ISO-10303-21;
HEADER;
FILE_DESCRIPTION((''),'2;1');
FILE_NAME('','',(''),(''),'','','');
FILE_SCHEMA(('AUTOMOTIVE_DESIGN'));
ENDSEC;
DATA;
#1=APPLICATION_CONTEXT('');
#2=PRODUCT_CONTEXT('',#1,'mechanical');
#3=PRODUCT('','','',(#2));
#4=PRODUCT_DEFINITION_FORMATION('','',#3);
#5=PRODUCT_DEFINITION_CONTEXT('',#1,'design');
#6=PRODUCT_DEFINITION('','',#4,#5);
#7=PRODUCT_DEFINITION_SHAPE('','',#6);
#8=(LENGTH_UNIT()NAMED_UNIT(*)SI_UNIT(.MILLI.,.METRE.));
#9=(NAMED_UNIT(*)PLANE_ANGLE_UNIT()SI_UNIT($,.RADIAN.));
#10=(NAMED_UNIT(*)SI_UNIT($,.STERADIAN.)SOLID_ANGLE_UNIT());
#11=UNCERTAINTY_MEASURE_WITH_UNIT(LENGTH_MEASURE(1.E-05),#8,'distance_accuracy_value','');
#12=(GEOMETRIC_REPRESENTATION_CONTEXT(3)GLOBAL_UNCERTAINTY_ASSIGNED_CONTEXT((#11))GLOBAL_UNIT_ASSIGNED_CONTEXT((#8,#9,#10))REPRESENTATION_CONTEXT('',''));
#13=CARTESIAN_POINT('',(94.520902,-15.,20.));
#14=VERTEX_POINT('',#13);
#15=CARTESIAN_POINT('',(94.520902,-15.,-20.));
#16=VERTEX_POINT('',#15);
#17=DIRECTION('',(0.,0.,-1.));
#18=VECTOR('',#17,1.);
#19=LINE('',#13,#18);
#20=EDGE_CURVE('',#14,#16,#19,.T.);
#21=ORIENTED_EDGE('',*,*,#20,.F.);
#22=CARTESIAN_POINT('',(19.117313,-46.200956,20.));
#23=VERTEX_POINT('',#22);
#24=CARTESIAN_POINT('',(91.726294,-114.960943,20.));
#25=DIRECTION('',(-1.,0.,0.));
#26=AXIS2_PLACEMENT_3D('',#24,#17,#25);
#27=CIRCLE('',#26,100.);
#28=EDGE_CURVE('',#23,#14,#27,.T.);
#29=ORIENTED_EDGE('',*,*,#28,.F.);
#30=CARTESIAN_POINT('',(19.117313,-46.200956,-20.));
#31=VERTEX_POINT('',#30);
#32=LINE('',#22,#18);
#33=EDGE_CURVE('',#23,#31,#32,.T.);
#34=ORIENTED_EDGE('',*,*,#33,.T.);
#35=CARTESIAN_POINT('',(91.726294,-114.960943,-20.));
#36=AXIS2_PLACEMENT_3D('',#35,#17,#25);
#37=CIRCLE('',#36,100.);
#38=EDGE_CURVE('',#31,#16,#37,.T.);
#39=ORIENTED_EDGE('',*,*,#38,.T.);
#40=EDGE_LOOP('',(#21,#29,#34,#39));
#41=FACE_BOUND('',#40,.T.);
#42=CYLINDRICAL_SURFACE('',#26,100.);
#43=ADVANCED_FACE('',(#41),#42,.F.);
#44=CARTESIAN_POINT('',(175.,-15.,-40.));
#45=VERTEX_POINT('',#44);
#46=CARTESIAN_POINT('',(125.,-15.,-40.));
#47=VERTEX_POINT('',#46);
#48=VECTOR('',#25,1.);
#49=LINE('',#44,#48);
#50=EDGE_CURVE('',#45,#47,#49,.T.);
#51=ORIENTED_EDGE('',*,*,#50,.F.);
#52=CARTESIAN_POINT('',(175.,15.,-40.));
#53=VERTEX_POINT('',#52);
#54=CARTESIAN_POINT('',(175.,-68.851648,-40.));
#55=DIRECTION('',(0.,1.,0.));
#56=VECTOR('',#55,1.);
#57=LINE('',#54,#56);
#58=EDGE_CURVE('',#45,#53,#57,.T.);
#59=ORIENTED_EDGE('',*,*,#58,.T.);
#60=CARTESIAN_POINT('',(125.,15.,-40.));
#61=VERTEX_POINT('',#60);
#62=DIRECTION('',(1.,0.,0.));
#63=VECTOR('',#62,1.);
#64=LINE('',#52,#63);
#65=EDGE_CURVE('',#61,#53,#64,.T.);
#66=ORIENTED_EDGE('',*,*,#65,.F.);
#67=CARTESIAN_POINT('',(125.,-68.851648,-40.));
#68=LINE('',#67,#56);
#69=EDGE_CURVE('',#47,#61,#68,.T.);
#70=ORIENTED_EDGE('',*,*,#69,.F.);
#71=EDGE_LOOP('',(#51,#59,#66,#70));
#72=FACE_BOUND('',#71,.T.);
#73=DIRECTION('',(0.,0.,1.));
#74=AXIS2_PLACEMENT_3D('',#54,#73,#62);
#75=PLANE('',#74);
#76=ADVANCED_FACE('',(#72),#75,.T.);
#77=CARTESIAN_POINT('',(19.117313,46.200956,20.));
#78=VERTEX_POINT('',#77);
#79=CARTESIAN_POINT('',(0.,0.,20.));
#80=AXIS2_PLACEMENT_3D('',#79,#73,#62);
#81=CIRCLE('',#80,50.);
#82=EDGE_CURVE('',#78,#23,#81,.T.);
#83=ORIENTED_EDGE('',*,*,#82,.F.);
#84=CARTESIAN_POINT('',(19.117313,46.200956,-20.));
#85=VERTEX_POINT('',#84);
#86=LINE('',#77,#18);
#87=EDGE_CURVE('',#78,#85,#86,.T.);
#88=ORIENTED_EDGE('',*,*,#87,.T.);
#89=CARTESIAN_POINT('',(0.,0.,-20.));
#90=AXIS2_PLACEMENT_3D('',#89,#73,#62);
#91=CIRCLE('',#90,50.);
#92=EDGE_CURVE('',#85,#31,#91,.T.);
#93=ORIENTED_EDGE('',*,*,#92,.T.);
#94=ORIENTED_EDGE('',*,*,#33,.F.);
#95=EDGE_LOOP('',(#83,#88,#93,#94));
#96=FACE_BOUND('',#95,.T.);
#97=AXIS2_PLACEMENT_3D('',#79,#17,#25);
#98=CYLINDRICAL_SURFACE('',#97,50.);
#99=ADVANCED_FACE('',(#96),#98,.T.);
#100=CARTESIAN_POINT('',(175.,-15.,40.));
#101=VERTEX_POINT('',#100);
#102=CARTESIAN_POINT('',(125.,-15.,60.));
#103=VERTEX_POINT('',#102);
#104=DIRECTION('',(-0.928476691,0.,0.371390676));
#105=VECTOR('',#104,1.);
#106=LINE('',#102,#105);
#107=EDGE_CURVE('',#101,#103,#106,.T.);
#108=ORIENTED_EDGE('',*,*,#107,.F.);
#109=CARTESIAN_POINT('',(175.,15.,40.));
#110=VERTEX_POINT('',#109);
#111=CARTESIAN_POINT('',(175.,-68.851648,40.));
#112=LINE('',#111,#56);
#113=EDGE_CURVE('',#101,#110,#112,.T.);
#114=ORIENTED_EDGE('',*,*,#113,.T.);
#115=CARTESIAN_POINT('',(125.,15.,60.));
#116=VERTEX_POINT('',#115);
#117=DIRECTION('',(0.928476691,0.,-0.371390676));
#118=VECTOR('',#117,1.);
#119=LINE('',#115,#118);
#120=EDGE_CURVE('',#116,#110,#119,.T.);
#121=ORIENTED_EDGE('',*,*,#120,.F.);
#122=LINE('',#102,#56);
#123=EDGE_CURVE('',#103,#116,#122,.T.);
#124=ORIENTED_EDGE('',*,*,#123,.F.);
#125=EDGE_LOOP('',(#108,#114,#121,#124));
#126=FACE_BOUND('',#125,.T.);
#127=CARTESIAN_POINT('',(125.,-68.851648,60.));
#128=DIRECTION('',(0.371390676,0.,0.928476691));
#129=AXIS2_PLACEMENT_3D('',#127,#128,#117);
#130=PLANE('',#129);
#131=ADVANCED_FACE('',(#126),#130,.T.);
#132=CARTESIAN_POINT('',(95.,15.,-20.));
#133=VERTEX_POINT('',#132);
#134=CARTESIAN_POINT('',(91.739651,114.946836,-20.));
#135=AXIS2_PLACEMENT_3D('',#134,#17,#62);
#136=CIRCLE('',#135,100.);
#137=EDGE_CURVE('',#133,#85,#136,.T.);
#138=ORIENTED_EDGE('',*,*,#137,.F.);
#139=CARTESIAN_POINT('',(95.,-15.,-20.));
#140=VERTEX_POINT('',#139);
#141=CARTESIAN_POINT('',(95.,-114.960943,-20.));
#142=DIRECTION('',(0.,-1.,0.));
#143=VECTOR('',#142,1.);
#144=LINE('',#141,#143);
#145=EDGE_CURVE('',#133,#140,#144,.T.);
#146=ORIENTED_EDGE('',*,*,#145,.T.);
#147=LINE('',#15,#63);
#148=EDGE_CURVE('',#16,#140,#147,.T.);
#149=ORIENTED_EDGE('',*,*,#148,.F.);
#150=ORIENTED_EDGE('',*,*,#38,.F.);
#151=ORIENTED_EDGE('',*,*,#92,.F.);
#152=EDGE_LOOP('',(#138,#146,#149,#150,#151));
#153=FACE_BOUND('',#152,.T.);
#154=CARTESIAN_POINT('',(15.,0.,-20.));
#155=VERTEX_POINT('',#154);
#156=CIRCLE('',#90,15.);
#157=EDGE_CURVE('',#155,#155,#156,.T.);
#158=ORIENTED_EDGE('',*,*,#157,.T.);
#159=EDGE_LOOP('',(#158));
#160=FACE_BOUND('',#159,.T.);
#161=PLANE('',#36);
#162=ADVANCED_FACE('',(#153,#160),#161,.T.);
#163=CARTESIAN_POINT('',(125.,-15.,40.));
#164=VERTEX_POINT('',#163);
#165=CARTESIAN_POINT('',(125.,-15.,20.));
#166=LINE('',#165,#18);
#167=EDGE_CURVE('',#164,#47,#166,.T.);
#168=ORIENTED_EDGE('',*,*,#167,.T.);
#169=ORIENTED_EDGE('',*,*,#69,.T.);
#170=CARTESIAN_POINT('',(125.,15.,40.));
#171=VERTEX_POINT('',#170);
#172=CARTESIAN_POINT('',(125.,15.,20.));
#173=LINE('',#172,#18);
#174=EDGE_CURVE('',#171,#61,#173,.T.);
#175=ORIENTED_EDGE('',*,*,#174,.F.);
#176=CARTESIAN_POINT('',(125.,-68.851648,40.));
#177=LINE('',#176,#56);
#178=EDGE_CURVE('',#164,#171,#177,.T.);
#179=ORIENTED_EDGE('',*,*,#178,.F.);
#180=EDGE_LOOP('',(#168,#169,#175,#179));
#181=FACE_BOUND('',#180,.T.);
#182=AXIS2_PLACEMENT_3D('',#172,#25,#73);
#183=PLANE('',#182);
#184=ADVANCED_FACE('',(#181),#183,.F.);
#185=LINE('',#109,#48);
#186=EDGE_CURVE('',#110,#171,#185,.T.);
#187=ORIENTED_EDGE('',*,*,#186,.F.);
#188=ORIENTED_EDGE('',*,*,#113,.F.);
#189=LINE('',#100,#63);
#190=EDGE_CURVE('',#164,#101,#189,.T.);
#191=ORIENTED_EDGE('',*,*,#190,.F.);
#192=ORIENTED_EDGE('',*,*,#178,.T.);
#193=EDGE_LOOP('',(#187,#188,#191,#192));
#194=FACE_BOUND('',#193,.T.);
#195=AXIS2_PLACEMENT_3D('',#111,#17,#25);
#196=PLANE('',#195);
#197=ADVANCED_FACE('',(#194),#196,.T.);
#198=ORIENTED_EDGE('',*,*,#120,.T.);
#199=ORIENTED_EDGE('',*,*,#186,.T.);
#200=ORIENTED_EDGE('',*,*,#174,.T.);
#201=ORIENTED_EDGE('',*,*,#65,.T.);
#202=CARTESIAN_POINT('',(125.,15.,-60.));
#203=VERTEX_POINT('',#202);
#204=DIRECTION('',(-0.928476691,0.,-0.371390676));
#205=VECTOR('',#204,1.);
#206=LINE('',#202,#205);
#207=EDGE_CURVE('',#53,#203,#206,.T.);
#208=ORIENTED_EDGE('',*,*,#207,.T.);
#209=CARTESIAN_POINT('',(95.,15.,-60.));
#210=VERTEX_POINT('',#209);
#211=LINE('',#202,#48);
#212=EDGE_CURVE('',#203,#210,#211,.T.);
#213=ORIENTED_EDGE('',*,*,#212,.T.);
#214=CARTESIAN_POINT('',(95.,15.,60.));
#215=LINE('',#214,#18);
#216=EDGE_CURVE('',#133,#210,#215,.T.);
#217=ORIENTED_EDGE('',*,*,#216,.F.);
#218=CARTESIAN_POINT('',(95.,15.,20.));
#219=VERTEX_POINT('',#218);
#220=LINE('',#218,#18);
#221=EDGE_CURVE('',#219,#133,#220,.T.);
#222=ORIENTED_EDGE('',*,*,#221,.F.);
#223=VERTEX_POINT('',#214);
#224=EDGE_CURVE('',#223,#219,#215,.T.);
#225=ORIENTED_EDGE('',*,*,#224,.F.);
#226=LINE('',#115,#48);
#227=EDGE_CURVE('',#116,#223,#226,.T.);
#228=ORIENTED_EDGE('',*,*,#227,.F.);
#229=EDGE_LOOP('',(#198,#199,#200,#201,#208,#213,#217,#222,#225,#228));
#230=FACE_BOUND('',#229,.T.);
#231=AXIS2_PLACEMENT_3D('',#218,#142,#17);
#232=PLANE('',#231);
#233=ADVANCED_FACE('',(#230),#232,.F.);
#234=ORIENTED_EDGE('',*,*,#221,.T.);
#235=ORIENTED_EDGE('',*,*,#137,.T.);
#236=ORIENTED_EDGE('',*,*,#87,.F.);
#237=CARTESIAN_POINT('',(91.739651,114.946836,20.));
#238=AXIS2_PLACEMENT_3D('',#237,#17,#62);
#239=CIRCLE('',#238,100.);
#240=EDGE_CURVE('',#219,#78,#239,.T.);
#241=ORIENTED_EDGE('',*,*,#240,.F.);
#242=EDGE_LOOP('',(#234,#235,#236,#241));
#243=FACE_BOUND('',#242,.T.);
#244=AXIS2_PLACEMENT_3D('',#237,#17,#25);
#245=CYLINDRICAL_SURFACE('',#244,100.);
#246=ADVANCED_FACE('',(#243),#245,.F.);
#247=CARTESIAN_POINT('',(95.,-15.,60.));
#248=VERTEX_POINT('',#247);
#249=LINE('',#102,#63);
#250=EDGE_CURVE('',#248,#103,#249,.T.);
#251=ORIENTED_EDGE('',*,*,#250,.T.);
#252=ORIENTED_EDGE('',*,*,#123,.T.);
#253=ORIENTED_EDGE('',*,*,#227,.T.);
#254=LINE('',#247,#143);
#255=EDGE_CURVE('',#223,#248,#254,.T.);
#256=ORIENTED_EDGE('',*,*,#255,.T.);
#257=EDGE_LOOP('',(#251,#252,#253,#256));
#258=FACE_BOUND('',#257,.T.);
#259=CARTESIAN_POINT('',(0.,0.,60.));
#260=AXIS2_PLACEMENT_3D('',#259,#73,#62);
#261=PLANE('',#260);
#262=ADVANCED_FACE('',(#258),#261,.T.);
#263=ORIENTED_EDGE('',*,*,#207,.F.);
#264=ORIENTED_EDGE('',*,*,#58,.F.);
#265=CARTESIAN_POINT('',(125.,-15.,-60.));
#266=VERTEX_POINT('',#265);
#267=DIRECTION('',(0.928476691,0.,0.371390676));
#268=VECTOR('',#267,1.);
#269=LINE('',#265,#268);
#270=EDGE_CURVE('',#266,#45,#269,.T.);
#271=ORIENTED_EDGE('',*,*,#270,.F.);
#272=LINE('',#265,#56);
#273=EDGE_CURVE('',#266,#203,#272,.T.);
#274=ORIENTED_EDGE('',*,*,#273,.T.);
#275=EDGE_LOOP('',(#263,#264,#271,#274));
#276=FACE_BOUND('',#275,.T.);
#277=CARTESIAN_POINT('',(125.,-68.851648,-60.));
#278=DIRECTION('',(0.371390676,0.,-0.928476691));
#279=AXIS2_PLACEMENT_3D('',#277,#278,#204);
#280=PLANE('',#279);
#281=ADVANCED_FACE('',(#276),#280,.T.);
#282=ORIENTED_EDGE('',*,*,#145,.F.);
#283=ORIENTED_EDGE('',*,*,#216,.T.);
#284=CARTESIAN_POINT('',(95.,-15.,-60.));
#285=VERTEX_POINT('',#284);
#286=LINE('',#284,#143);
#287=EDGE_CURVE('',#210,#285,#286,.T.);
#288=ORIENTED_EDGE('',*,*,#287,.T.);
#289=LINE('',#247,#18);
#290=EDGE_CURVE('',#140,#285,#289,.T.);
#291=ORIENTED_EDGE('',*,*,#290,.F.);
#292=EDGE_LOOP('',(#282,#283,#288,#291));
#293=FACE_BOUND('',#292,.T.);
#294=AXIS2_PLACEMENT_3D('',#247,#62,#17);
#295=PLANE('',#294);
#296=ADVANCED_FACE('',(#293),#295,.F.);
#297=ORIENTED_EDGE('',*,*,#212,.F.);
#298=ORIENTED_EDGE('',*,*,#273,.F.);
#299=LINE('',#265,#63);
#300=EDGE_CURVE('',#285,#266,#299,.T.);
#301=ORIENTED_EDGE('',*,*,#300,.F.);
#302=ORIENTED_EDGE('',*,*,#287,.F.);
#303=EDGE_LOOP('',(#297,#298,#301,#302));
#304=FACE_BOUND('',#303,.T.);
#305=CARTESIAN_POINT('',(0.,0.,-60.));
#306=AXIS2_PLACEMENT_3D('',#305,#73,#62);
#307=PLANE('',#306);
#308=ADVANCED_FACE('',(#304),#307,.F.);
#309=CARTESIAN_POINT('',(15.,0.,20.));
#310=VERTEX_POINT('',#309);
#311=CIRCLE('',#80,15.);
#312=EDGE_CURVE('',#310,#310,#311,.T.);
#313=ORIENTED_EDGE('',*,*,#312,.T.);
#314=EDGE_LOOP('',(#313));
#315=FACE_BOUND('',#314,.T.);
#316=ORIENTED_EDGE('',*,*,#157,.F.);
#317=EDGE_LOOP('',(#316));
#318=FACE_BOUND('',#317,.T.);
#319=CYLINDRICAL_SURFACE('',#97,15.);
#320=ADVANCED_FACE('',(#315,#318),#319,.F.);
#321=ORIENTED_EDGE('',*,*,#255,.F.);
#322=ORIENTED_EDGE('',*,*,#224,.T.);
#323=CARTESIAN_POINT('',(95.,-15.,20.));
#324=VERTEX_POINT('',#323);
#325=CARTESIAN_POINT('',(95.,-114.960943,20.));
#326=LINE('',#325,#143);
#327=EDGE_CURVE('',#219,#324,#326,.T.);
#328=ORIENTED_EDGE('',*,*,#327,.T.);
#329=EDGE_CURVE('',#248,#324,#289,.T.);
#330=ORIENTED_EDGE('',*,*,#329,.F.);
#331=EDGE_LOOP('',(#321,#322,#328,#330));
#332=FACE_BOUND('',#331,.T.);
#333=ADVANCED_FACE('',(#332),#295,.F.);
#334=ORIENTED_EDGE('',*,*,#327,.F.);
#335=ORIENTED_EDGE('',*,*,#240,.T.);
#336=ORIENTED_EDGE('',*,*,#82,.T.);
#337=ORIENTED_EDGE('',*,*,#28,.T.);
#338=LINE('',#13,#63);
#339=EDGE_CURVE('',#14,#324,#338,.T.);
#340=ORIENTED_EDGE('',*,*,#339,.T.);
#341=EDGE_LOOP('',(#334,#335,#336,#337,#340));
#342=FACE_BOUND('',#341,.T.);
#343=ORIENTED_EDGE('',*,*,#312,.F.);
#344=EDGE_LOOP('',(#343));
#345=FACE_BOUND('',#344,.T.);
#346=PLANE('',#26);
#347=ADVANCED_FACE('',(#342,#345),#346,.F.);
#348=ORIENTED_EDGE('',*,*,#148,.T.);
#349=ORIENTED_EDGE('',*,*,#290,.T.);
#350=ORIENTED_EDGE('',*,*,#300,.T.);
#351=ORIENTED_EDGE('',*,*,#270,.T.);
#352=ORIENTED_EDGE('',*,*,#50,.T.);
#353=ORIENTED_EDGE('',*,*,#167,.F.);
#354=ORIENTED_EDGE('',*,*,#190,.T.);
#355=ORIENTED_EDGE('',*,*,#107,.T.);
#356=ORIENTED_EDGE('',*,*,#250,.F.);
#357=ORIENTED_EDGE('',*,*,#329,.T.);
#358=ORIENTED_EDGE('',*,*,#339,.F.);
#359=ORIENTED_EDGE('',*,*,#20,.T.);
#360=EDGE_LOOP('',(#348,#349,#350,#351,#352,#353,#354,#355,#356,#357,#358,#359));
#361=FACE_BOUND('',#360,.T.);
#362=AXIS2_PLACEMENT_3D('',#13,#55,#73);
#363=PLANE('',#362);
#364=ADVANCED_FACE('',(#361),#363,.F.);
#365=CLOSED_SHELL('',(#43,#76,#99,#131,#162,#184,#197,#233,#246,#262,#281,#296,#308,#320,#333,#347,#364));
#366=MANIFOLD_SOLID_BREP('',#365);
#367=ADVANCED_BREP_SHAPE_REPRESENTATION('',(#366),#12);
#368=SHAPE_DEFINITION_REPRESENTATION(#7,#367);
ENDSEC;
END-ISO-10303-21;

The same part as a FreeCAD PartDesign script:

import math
import FreeCAD as App
import Part
import Sketcher

V = App.Vector


def add_polygon(sketch, points):
    """Adds a closed chain of lines whose ends are joined by coincident constraints."""
    first, n = sketch.GeometryCount, len(points)
    for a, b in zip(points, points[1:] + points[:1]):
        sketch.addGeometry(Part.LineSegment(App.Vector(*a, 0), App.Vector(*b, 0)), False)
    for i in range(n):
        sketch.addConstraint(Sketcher.Constraint("Coincident", first + i, 2, first + (i + 1) % n, 1))

doc = App.newDocument("Part")
body = doc.addObject("PartDesign::Body", "Body")

# Sketch on XY plane
sketch1 = doc.addObject("Sketcher::SketchObject", "Sketch")
body.addObject(sketch1)
sketch1.AttachmentSupport = (doc.XY_Plane, [""])
sketch1.MapMode = "FlatFace"
sketch1.addGeometry(Part.LineSegment(V(125, 15, 0), V(95, 15, 0)), False)
sketch1.addGeometry(Part.ArcOfCircle(Part.Circle(V(92, 115, 0), V(0, 0, 1), 100), math.radians(-137), math.radians(-88)), False)
sketch1.addGeometry(Part.ArcOfCircle(Part.Circle(V(0, 0, 0), V(0, 0, 1), 50), math.radians(68), math.radians(292)), False)
sketch1.addGeometry(Part.ArcOfCircle(Part.Circle(V(92, -115, 0), V(0, 0, 1), 100), math.radians(88), math.radians(137)), False)
sketch1.addGeometry(Part.LineSegment(V(95, -15, 0), V(125, -15, 0)), False)
sketch1.addGeometry(Part.LineSegment(V(125, -15, 0), V(125, 15, 0)), False)
sketch1.addGeometry(Part.Circle(V(0, 0, 0), V(0, 0, 1), 15), False)
sketch1.addConstraint(Sketcher.Constraint("Coincident", 0, 2, 1, 2))
sketch1.addConstraint(Sketcher.Constraint("Coincident", 1, 1, 2, 1))
sketch1.addConstraint(Sketcher.Constraint("Coincident", 2, 2, 3, 2))
sketch1.addConstraint(Sketcher.Constraint("Coincident", 3, 1, 4, 1))
sketch1.addConstraint(Sketcher.Constraint("Coincident", 4, 2, 5, 1))
sketch1.addConstraint(Sketcher.Constraint("Coincident", 5, 2, 0, 1))
sketch1.addConstraint(Sketcher.Constraint("Horizontal", 0))
sketch1.addConstraint(Sketcher.Constraint("Horizontal", 4))
sketch1.addConstraint(Sketcher.Constraint("Vertical", 5))
sketch1.addConstraint(Sketcher.Constraint("Coincident", 2, 3, -1, 1))
sketch1.addConstraint(Sketcher.Constraint("Coincident", 6, 3, -1, 1))
sketch1.addConstraint(Sketcher.Constraint("Equal", 1, 3))
sketch1.addConstraint(Sketcher.Constraint("Vertical", 1, 1, 2, 2))
sketch1.addConstraint(Sketcher.Constraint("Equal", 0, 5))
sketch1.addConstraint(Sketcher.Constraint("Diameter", 6, 30.0))
sketch1.addConstraint(Sketcher.Constraint("Radius", 1, 100.0))
sketch1.addConstraint(Sketcher.Constraint("Radius", 2, 50.0))
sketch1.addConstraint(Sketcher.Constraint("DistanceX", 0, 2, 0, 1, 30.0))
sketch1.addConstraint(Sketcher.Constraint("DistanceX", -1, 1, 0, 2, 95.0))
sketch1.addConstraint(Sketcher.Constraint("DistanceY", -1, 1, 0, 2, 15.0))
sketch1.addConstraint(Sketcher.Constraint("DistanceY", 3, 3, 1, 1, 161.161899))
sketch1.addConstraint(Sketcher.Constraint("DistanceX", 4, 1, 4, 2, 30.479098))
pad1 = doc.addObject("PartDesign::Pad", "Pad")
body.addObject(pad1)
pad1.Profile = sketch1
pad1.Length = 40
pad1.Midplane = True

# Sketch on XY plane
sketch2 = doc.addObject("Sketcher::SketchObject", "Sketch001")
body.addObject(sketch2)
sketch2.AttachmentSupport = (doc.XY_Plane, [""])
sketch2.MapMode = "FlatFace"
add_polygon(sketch2, [(95, 15), (95, -15), (125, -15), (125, 15)])  # lines 0-3
sketch2.addConstraint(Sketcher.Constraint("Vertical", 0))
sketch2.addConstraint(Sketcher.Constraint("Horizontal", 1))
sketch2.addConstraint(Sketcher.Constraint("Vertical", 2))
sketch2.addConstraint(Sketcher.Constraint("Horizontal", 3))
sketch2.addConstraint(Sketcher.Constraint("Equal", 3, 0))
sketch2.addConstraint(Sketcher.Constraint("DistanceX", 1, 1, 1, 2, 30.0))
sketch2.addConstraint(Sketcher.Constraint("DistanceX", -1, 1, 0, 2, 95.0))
sketch2.addConstraint(Sketcher.Constraint("DistanceY", 0, 2, -1, 1, 15.0))
pad2 = doc.addObject("PartDesign::Pad", "Pad001")
body.addObject(pad2)
pad2.Profile = sketch2
pad2.Length = 120
pad2.Midplane = True

# Sketch on XZ plane
sketch3 = doc.addObject("Sketcher::SketchObject", "Sketch002")
body.addObject(sketch3)
sketch3.AttachmentSupport = (doc.XZ_Plane, [""])
sketch3.MapMode = "FlatFace"
sketch3.AttachmentOffset = App.Placement(V(0, 0, -15), App.Rotation())
add_polygon(sketch3, [(175, -40), (125, -60), (125, -40)])  # lines 0-2
add_polygon(sketch3, [(125, 60), (175, 40), (125, 40)])  # lines 3-5
sketch3.addConstraint(Sketcher.Constraint("Vertical", 1))
sketch3.addConstraint(Sketcher.Constraint("Horizontal", 2))
sketch3.addConstraint(Sketcher.Constraint("Horizontal", 4))
sketch3.addConstraint(Sketcher.Constraint("Vertical", 5))
sketch3.addConstraint(Sketcher.Constraint("Symmetric", 2, 2, 3, 2, -1))
sketch3.addConstraint(Sketcher.Constraint("Symmetric", 0, 2, 5, 2, -1))
sketch3.addConstraint(Sketcher.Constraint("DistanceX", 2, 1, 2, 2, 50.0))
sketch3.addConstraint(Sketcher.Constraint("DistanceY", 1, 1, 1, 2, 20.0))
sketch3.addConstraint(Sketcher.Constraint("DistanceX", -1, 1, 0, 2, 125.0))
sketch3.addConstraint(Sketcher.Constraint("DistanceY", 0, 2, -1, 1, 60.0))
pad3 = doc.addObject("PartDesign::Pad", "Pad002")
body.addObject(pad3)
pad3.Profile = sketch3
pad3.Length = 30

doc.recompute()
